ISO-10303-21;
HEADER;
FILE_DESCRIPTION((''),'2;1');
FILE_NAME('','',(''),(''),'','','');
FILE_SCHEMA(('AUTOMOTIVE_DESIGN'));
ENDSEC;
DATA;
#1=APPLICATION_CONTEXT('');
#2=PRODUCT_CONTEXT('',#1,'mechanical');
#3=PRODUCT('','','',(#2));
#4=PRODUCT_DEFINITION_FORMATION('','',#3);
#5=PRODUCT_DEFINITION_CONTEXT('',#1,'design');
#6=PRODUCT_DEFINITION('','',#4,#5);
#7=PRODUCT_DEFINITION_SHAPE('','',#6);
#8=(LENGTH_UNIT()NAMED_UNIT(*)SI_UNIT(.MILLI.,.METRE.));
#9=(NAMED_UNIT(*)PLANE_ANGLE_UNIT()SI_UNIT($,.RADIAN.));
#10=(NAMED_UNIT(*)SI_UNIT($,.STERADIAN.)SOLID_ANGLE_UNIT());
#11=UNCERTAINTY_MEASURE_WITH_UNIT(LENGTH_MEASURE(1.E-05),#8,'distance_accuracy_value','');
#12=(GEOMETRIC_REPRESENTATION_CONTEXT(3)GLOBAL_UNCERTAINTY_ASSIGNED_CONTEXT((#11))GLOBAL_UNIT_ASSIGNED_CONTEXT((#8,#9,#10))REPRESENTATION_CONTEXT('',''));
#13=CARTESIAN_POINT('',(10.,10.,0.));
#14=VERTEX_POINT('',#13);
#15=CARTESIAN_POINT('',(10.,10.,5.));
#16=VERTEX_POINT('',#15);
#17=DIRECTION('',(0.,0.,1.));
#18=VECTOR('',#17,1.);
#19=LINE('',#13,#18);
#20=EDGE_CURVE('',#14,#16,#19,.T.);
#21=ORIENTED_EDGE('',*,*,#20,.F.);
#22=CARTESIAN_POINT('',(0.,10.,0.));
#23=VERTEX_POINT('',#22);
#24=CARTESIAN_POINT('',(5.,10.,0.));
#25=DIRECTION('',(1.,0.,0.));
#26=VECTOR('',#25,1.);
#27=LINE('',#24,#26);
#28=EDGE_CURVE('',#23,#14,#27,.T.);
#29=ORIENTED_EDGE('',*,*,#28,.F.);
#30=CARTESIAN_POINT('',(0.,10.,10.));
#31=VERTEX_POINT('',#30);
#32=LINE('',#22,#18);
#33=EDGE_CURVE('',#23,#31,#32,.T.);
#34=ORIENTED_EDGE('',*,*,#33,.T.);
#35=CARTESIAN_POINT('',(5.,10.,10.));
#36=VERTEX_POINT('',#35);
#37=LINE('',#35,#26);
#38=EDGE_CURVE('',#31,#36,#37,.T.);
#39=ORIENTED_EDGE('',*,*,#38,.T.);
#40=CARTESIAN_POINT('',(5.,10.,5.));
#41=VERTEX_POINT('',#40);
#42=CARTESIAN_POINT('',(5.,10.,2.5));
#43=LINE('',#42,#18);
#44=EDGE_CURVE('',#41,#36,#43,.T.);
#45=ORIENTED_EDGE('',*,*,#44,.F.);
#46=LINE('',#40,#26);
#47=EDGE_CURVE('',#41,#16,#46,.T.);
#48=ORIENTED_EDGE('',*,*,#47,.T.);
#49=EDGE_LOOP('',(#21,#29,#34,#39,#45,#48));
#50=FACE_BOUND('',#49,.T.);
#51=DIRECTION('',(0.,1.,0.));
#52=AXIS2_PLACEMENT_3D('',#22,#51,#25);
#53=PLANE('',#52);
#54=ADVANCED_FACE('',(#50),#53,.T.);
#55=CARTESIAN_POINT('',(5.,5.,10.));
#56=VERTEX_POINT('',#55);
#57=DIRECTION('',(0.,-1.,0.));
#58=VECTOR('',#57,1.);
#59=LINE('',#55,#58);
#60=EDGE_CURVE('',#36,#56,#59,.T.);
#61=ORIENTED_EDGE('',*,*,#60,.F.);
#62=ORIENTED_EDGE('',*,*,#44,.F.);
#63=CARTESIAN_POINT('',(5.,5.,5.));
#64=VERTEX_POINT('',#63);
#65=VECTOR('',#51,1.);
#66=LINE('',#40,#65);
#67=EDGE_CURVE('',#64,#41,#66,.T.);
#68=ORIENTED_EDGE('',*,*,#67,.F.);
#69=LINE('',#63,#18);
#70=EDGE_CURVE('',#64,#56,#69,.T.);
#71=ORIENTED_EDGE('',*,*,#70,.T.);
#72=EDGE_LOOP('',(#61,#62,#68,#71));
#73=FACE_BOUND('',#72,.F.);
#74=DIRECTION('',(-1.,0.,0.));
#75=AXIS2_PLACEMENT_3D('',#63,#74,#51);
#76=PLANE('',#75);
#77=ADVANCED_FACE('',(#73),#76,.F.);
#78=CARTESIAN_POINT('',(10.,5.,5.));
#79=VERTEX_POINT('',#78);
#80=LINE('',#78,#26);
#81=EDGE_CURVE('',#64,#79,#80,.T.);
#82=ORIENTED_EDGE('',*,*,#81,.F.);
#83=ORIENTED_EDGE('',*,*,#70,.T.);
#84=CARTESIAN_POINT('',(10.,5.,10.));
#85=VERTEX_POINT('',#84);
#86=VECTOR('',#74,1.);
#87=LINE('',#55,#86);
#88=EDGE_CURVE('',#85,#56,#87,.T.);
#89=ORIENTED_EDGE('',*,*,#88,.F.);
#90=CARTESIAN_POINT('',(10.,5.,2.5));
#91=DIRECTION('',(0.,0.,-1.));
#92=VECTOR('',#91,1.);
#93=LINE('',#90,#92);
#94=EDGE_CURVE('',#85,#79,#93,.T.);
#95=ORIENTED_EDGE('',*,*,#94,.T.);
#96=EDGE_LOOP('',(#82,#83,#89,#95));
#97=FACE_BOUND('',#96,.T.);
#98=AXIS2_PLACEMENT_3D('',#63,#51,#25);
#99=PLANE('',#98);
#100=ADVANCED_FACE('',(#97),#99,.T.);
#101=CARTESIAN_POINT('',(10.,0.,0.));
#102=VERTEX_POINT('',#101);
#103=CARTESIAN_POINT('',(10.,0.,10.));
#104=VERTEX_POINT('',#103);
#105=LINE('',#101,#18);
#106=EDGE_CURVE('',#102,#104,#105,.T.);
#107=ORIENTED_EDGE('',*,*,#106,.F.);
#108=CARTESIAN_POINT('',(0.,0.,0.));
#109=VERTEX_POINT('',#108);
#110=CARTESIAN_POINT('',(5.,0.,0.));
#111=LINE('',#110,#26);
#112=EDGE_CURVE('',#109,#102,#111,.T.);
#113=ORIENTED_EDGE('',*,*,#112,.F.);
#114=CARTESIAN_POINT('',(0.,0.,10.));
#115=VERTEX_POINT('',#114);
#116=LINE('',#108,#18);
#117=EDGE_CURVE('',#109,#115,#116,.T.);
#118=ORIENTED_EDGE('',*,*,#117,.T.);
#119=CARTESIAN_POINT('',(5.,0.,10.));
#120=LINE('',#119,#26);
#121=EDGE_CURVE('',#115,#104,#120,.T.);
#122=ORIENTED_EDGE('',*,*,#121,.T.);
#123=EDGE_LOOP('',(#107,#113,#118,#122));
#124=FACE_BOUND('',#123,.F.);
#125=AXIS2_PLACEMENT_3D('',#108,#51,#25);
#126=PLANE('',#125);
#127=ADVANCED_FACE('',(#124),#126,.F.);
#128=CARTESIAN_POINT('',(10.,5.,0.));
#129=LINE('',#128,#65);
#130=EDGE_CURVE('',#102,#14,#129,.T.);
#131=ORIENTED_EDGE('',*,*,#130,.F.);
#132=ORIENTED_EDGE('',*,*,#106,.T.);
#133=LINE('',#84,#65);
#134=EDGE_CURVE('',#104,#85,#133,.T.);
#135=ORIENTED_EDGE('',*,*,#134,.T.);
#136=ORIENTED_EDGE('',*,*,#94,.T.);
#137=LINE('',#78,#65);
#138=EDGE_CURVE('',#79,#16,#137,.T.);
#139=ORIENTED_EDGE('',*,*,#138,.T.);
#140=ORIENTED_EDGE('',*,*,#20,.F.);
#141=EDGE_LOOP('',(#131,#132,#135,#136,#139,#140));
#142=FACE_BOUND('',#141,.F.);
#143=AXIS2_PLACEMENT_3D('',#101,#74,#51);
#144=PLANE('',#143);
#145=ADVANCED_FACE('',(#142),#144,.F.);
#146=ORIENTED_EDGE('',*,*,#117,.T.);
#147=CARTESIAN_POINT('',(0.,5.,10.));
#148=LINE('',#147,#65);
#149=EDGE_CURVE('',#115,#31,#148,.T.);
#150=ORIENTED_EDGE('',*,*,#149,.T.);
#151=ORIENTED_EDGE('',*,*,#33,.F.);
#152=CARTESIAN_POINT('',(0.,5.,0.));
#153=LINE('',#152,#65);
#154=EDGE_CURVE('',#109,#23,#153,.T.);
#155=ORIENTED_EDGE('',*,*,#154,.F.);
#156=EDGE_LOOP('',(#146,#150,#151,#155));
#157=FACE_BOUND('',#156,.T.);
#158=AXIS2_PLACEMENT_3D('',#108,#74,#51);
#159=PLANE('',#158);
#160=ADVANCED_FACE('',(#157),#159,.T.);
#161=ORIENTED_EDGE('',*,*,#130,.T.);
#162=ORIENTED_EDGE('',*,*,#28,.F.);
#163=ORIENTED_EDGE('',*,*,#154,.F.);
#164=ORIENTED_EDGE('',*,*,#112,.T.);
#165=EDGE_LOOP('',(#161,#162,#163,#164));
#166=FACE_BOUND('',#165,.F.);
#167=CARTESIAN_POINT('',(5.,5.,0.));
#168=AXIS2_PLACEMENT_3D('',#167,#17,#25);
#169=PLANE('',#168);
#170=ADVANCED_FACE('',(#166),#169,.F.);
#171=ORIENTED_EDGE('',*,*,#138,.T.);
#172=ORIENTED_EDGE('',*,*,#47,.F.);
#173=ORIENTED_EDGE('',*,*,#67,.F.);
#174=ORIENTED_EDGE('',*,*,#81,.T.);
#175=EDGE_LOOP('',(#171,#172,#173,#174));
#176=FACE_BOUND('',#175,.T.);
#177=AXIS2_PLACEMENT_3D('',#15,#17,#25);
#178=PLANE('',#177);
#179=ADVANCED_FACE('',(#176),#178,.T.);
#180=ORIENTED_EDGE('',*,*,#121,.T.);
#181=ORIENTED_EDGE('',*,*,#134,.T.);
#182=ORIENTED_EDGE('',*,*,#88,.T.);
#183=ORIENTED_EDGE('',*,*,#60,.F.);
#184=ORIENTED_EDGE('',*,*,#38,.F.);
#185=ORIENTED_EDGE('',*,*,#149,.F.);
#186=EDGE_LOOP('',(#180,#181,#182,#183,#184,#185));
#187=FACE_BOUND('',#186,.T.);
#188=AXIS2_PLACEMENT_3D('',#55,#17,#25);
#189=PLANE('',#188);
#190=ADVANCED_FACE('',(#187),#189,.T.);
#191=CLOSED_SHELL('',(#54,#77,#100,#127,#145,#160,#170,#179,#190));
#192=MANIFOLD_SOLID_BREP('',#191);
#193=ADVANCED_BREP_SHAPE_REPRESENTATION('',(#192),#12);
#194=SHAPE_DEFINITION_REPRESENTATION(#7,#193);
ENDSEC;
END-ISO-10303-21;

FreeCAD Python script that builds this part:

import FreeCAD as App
import Part
import Sketcher


def add_polygon(sketch, points):
    """Adds a closed chain of lines whose ends are joined by coincident constraints."""
    first, n = sketch.GeometryCount, len(points)
    for a, b in zip(points, points[1:] + points[:1]):
        sketch.addGeometry(Part.LineSegment(App.Vector(*a, 0), App.Vector(*b, 0)), False)
    for i in range(n):
        sketch.addConstraint(Sketcher.Constraint("Coincident", first + i, 2, first + (i + 1) % n, 1))

doc = App.newDocument("Part")
body = doc.addObject("PartDesign::Body", "Body")

sketch1 = doc.addObject("Sketcher::SketchObject", "Sketch")
body.addObject(sketch1)
sketch1.AttachmentSupport = (doc.XY_Plane, [""])
sketch1.MapMode = "FlatFace"
sketch1.AttachmentOffset = App.Placement(App.Vector(0, 0, 5), App.Rotation())
add_polygon(sketch1, [(5, 15), (5, 5), (15, 5), (15, 15)])
sketch1.addConstraint([
    Sketcher.Constraint("Vertical", 0),
    Sketcher.Constraint("Horizontal", 1),
    Sketcher.Constraint("Vertical", 2),
    Sketcher.Constraint("Horizontal", 3),
    Sketcher.Constraint("Equal", 3, 0),
    Sketcher.Constraint("DistanceX", 1, 1, 1, 2, 10.0),
    Sketcher.Constraint("DistanceX", -1, 1, 0, 2, 5.0),
    Sketcher.Constraint("DistanceY", -1, 1, 0, 2, 5.0),
])
pad1 = doc.addObject("PartDesign::Pad", "Pad")
body.addObject(pad1)
pad1.Profile = sketch1
pad1.Length = 10
body2 = doc.addObject("PartDesign::Body", "Body001")

sketch2 = doc.addObject("Sketcher::SketchObject", "Sketch001")
body2.addObject(sketch2)
sketch2.AttachmentSupport = (doc.getObject("XY_Plane001"), [""])
sketch2.MapMode = "FlatFace"
add_polygon(sketch2, [(0, 10), (0, 0), (10, 0), (10, 10)])
sketch2.addConstraint([
    Sketcher.Constraint("Vertical", 0),
    Sketcher.Constraint("Horizontal", 1),
    Sketcher.Constraint("Vertical", 2),
    Sketcher.Constraint("Horizontal", 3),
    Sketcher.Constraint("Coincident", 0, 2, -1, 1),
    Sketcher.Constraint("Equal", 3, 0),
    Sketcher.Constraint("DistanceX", 1, 1, 1, 2, 10.0),
])
pad2 = doc.addObject("PartDesign::Pad", "Pad001")
body2.addObject(pad2)
pad2.Profile = sketch2
pad2.Length = 10
doc.recompute()

boolean = doc.addObject("PartDesign::Boolean", "Boolean")
body2.addObject(boolean)
boolean.Type = "Cut"
boolean.addObjects([body])

doc.recompute()
